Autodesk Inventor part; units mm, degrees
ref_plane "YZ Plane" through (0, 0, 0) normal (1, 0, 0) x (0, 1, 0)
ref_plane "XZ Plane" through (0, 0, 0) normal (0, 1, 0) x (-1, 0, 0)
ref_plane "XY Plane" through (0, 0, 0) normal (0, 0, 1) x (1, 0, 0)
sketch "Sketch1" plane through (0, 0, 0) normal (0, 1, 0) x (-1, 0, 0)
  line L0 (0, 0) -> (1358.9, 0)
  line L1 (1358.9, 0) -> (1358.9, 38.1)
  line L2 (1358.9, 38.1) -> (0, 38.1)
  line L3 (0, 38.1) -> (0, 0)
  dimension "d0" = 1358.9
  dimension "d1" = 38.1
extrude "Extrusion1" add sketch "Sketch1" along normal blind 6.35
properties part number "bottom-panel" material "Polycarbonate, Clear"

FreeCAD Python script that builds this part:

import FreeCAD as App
import Part
import Sketcher
Q = App.Units.Quantity

doc = App.newDocument("Part")
body = doc.addObject("PartDesign::Body", "Body")

sketch1 = body.newObject("Sketcher::SketchObject", "Sketch")
sketch1.AttachmentSupport = (doc.getObject("XZ_Plane"), [""])
sketch1.MapMode = "FlatFace"
sketch1.addGeometry(Part.LineSegment(App.Vector(0, 38, 0), App.Vector(0, 0, 0)), False)
sketch1.addGeometry(Part.LineSegment(App.Vector(0, 0, 0), App.Vector(-1359, 0, 0)), False)
sketch1.addGeometry(Part.LineSegment(App.Vector(-1359, 0, 0), App.Vector(-1359, 38, 0)), False)
sketch1.addGeometry(Part.LineSegment(App.Vector(-1359, 38, 0), App.Vector(0, 38, 0)), False)
sketch1.addConstraint(Sketcher.Constraint("Coincident", 0, 2, 1, 1))
sketch1.addConstraint(Sketcher.Constraint("Coincident", 1, 2, 2, 1))
sketch1.addConstraint(Sketcher.Constraint("Coincident", 2, 2, 3, 1))
sketch1.addConstraint(Sketcher.Constraint("Coincident", 3, 2, 0, 1))
sketch1.addConstraint(Sketcher.Constraint("Vertical", 0))
sketch1.addConstraint(Sketcher.Constraint("Horizontal", 1))
sketch1.addConstraint(Sketcher.Constraint("Vertical", 2))
sketch1.addConstraint(Sketcher.Constraint("Horizontal", 3))
sketch1.addConstraint(Sketcher.Constraint("Coincident", 0, 2, -1, 1))
sketch1.addConstraint(Sketcher.Constraint("DistanceX", 1, 2, 1, 1, Q("53.5 in")))
sketch1.addConstraint(Sketcher.Constraint("DistanceY", 0, 2, 0, 1, Q("1.5 in")))
pad1 = body.newObject("PartDesign::Pad", "Pad")
pad1.Profile = sketch1
pad1.Length = Q("0.25 in")
pad1.Reversed = True

doc.recompute()
